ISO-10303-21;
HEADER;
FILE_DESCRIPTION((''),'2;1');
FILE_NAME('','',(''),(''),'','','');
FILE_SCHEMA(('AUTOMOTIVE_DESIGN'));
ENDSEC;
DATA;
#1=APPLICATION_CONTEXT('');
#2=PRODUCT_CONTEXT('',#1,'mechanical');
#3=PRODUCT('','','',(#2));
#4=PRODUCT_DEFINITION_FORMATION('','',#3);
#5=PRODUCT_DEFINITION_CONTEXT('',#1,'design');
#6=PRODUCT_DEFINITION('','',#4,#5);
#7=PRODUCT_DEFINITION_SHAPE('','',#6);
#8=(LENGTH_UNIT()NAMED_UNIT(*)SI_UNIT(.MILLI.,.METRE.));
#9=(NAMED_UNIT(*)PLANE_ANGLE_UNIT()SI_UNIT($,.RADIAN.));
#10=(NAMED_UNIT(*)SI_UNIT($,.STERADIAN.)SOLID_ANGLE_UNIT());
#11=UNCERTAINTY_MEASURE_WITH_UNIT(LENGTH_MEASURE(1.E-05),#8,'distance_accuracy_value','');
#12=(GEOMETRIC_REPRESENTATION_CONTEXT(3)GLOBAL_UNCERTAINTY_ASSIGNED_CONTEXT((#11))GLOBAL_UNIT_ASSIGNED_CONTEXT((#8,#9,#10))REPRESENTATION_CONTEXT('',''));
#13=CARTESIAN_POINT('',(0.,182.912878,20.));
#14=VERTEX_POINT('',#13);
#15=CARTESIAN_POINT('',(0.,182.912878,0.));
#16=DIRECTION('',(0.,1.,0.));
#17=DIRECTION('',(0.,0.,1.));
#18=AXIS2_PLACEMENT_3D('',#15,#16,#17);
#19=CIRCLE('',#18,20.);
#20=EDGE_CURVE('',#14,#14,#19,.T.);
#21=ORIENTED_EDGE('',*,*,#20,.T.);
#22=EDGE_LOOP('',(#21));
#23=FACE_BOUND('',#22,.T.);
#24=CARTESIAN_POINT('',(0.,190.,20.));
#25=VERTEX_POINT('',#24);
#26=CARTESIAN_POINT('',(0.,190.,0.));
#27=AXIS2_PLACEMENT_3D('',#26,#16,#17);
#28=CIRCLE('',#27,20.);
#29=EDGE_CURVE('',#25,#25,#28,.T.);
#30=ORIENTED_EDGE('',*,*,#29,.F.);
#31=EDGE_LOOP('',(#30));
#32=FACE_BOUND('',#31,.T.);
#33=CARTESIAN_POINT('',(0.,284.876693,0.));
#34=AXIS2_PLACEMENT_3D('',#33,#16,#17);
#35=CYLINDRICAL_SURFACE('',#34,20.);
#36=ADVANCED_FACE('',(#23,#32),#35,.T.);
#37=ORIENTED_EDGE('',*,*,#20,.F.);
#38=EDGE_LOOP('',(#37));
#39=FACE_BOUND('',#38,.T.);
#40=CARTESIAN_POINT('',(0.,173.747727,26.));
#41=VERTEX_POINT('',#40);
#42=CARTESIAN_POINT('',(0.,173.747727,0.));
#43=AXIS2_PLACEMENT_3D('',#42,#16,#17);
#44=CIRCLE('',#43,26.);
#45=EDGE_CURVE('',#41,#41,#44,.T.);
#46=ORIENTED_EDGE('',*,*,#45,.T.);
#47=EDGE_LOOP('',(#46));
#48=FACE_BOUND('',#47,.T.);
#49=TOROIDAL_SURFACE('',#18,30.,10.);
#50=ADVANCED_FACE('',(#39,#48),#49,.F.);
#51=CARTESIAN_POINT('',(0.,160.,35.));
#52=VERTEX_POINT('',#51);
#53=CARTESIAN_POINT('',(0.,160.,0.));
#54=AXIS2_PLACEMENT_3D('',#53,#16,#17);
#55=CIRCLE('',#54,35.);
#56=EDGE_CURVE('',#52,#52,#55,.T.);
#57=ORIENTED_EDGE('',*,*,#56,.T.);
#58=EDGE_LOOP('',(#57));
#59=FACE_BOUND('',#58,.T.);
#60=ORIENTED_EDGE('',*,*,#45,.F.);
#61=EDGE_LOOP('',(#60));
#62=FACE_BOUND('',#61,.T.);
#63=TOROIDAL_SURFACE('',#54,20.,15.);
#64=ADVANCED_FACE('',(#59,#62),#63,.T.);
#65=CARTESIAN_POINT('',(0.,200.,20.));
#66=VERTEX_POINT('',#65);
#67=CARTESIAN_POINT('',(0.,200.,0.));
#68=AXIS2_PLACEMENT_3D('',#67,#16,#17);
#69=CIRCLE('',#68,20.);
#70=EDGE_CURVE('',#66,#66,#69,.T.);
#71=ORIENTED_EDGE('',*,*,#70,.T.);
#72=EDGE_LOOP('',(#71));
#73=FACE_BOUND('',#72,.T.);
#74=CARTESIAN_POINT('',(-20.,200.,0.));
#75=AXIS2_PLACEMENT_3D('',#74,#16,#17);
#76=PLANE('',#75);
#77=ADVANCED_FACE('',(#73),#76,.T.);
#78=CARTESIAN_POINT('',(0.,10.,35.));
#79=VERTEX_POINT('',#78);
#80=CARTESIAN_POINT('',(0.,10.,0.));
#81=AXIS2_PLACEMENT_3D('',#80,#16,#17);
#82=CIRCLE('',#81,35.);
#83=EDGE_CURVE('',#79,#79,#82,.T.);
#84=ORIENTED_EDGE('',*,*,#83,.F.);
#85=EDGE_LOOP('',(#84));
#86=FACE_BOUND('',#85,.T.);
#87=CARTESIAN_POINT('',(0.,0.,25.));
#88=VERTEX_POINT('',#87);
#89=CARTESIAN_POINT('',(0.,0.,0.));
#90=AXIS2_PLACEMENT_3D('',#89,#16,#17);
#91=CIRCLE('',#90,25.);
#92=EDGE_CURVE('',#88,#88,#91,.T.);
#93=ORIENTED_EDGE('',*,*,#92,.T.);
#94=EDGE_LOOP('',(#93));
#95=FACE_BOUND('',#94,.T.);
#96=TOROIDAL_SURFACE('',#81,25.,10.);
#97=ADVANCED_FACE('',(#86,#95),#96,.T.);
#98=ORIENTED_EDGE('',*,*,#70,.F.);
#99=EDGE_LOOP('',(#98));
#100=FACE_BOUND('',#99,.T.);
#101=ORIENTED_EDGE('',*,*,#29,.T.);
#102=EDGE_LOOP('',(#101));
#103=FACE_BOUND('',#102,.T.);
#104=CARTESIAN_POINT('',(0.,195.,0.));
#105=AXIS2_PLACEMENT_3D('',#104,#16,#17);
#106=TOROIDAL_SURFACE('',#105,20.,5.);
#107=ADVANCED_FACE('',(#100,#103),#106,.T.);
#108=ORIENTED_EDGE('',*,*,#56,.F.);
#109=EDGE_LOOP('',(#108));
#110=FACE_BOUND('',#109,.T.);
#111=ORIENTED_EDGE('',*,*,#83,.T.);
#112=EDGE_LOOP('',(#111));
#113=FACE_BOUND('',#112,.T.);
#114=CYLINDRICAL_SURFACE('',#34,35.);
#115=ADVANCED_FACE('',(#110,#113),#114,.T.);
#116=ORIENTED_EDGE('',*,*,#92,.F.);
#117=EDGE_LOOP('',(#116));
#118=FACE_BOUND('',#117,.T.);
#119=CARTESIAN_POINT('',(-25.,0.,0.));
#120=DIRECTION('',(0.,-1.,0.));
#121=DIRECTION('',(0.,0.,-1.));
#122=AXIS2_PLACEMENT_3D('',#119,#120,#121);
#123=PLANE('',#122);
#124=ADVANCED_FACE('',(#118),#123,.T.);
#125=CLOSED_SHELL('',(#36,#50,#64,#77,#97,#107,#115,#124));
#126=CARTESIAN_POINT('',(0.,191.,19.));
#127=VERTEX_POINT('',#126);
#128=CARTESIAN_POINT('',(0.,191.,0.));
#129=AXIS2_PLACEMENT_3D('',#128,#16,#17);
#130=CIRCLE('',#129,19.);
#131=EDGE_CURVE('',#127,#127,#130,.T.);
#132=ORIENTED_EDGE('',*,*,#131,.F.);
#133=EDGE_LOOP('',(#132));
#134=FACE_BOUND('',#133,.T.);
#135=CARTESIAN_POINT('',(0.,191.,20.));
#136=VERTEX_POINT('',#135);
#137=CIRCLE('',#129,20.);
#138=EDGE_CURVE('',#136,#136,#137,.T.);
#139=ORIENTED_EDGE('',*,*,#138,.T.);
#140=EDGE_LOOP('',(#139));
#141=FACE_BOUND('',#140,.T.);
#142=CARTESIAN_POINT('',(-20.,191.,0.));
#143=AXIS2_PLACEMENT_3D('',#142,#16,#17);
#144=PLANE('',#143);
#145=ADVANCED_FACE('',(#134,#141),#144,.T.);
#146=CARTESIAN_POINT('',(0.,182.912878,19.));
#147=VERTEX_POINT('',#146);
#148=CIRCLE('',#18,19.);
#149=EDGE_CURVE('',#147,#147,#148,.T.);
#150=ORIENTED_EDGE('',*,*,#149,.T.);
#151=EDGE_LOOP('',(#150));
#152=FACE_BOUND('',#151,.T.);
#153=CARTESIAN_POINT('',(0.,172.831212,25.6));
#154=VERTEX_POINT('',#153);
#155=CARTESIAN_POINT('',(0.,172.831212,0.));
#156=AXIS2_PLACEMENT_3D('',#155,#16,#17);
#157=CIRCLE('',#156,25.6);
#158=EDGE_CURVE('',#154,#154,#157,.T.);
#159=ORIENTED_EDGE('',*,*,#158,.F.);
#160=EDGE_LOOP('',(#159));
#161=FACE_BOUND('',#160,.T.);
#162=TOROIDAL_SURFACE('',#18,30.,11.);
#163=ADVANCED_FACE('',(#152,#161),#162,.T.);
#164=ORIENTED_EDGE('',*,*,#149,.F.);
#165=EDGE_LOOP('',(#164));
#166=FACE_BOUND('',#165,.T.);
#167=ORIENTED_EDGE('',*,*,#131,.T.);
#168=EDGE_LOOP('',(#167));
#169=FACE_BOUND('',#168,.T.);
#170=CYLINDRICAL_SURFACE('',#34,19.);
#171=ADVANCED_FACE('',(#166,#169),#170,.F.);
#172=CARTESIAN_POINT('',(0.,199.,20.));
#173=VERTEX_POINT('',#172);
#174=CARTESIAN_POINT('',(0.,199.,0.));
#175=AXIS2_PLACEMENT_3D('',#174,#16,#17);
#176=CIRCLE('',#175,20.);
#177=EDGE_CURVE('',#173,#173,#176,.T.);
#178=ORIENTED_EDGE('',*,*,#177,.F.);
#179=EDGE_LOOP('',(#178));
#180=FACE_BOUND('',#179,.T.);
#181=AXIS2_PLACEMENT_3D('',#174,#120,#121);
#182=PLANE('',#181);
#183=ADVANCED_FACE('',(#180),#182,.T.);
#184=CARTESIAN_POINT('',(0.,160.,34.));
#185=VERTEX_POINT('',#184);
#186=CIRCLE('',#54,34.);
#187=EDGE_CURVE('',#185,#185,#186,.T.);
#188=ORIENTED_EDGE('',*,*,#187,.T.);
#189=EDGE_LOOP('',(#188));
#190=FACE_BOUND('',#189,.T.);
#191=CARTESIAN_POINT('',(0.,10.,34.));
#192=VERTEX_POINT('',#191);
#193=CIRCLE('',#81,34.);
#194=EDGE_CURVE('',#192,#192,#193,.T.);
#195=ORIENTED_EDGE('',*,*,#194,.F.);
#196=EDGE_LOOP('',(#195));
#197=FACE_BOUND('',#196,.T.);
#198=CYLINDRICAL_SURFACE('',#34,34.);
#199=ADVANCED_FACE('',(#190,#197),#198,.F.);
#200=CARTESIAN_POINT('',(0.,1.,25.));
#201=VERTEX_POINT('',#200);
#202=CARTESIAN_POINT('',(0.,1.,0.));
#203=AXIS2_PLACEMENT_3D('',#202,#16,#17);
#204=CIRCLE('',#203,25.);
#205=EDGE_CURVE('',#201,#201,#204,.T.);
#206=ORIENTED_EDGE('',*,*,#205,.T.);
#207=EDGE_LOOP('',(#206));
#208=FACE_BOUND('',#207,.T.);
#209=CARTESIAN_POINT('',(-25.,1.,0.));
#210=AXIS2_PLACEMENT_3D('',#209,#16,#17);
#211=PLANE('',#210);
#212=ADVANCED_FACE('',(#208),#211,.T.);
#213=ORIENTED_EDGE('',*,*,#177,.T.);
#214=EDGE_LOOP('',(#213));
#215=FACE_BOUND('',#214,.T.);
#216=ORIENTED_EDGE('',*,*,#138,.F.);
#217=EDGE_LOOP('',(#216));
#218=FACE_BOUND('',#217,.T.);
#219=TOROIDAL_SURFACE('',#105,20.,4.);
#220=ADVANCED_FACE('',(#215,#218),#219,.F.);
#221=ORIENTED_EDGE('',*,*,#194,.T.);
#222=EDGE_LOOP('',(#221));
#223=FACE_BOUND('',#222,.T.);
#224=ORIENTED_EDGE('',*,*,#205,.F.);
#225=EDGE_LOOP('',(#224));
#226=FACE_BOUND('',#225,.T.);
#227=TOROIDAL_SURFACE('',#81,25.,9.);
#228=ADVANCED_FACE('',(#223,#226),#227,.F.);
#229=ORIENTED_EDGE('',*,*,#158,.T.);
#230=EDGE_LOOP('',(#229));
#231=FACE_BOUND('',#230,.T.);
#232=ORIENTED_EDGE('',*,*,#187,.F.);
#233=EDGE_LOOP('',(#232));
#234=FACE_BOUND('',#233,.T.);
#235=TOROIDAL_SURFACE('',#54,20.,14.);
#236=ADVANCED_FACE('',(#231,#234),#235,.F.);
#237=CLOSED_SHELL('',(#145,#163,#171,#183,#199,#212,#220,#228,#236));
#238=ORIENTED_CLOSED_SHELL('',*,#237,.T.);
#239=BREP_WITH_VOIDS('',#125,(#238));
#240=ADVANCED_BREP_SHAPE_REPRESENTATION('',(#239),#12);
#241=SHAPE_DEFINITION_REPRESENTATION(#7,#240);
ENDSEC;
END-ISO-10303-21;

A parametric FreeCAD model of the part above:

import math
import FreeCAD as App
import Part
import Sketcher
from FreeCAD import Vector

doc = App.newDocument("Part")
body = doc.addObject("PartDesign::Body", "Body")

# Sketch on XY plane
sketch1 = body.newObject("Sketcher::SketchObject", "Sketch")
sketch1.AttachmentSupport = (doc.getObject("XY_Plane"), [""])
sketch1.MapMode = "FlatFace"
sketch1.addGeometry(Part.LineSegment(Vector(-35, 160, 0), Vector(-35, 10, 0)), False)
sketch1.addGeometry(Part.ArcOfCircle(Part.Circle(Vector(-25, 10, 0), Vector(0, 0, 1), 10), math.radians(180), math.radians(270)), False)
sketch1.addGeometry(Part.LineSegment(Vector(-25, 0, 0), Vector(0, 0, 0)), False)
sketch1.addGeometry(Part.LineSegment(Vector(0, 0, 0), Vector(0, 1, 0)), False)
sketch1.addGeometry(Part.LineSegment(Vector(0, 1, 0), Vector(-25, 1, 0)), False)
sketch1.addGeometry(Part.ArcOfCircle(Part.Circle(Vector(-25, 10, 0), Vector(0, 0, 1), 9), math.radians(180), math.radians(270)), False)
sketch1.addGeometry(Part.LineSegment(Vector(-34, 10, 0), Vector(-34, 160, 0)), False)
sketch1.addGeometry(Part.ArcOfCircle(Part.Circle(Vector(-20, 160, 0), Vector(0, 0, 1), 14), math.radians(114), math.radians(180)), False)
sketch1.addGeometry(Part.ArcOfCircle(Part.Circle(Vector(-30, 182.9, 0), Vector(0, 0, 1), 11), math.radians(-66), math.radians(0)), False)
sketch1.addGeometry(Part.LineSegment(Vector(-19, 182.9, 0), Vector(-19, 191, 0)), False)
sketch1.addGeometry(Part.LineSegment(Vector(-19, 191, 0), Vector(-20, 191, 0)), False)
sketch1.addGeometry(Part.ArcOfCircle(Part.Circle(Vector(-20, 195, 0), Vector(0, 0, 1), 4), math.radians(90), math.radians(270)), False)
sketch1.addGeometry(Part.LineSegment(Vector(-20, 199, 0), Vector(0, 199, 0)), False)
sketch1.addGeometry(Part.LineSegment(Vector(0, 199, 0), Vector(0, 200, 0)), False)
sketch1.addGeometry(Part.LineSegment(Vector(0, 200, 0), Vector(-20, 200, 0)), False)
sketch1.addGeometry(Part.ArcOfCircle(Part.Circle(Vector(-20, 195, 0), Vector(0, 0, 1), 5), math.radians(90), math.radians(270)), False)
sketch1.addGeometry(Part.LineSegment(Vector(-20, 190, 0), Vector(-20, 182.9, 0)), False)
sketch1.addGeometry(Part.ArcOfCircle(Part.Circle(Vector(-30, 182.9, 0), Vector(0, 0, 1), 10), math.radians(-66), math.radians(0)), False)
sketch1.addGeometry(Part.ArcOfCircle(Part.Circle(Vector(-20, 160, 0), Vector(0, 0, 1), 15), math.radians(114), math.radians(180)), False)
sketch1.addConstraint(Sketcher.Constraint("Tangent", 0, 2, 1, 1))
sketch1.addConstraint(Sketcher.Constraint("Tangent", 1, 2, 2, 1))
sketch1.addConstraint(Sketcher.Constraint("Coincident", 2, 2, 3, 1))
sketch1.addConstraint(Sketcher.Constraint("Coincident", 3, 2, 4, 1))
sketch1.addConstraint(Sketcher.Constraint("Tangent", 4, 2, 5, 2))
sketch1.addConstraint(Sketcher.Constraint("Tangent", 5, 1, 6, 1))
sketch1.addConstraint(Sketcher.Constraint("Tangent", 6, 2, 7, 2))
sketch1.addConstraint(Sketcher.Constraint("Tangent", 7, 1, 8, 1))
sketch1.addConstraint(Sketcher.Constraint("Tangent", 8, 2, 9, 1))
sketch1.addConstraint(Sketcher.Constraint("Coincident", 9, 2, 10, 1))
sketch1.addConstraint(Sketcher.Constraint("Tangent", 10, 2, 11, 2))
sketch1.addConstraint(Sketcher.Constraint("Tangent", 11, 1, 12, 1))
sketch1.addConstraint(Sketcher.Constraint("Coincident", 12, 2, 13, 1))
sketch1.addConstraint(Sketcher.Constraint("Coincident", 13, 2, 14, 1))
sketch1.addConstraint(Sketcher.Constraint("Tangent", 14, 2, 15, 1))
sketch1.addConstraint(Sketcher.Constraint("Coincident", 15, 2, 16, 1))
sketch1.addConstraint(Sketcher.Constraint("Tangent", 16, 2, 17, 2))
sketch1.addConstraint(Sketcher.Constraint("Tangent", 17, 1, 18, 1))
sketch1.addConstraint(Sketcher.Constraint("Tangent", 18, 2, 0, 1))
sketch1.addConstraint(Sketcher.Constraint("Vertical", 0))
sketch1.addConstraint(Sketcher.Constraint("Horizontal", 2))
sketch1.addConstraint(Sketcher.Constraint("Vertical", 3))
sketch1.addConstraint(Sketcher.Constraint("Horizontal", 4))
sketch1.addConstraint(Sketcher.Constraint("Vertical", 6))
sketch1.addConstraint(Sketcher.Constraint("Vertical", 9))
sketch1.addConstraint(Sketcher.Constraint("Horizontal", 10))
sketch1.addConstraint(Sketcher.Constraint("Horizontal", 12))
sketch1.addConstraint(Sketcher.Constraint("Vertical", 13))
sketch1.addConstraint(Sketcher.Constraint("Horizontal", 14))
sketch1.addConstraint(Sketcher.Constraint("Vertical", 16))
sketch1.addConstraint(Sketcher.Constraint("Coincident", 2, 2, -1, 1))
sketch1.addConstraint(Sketcher.Constraint("Coincident", 5, 3, 1, 3))
sketch1.addConstraint(Sketcher.Constraint("Coincident", 15, 3, 11, 3))
sketch1.addConstraint(Sketcher.Constraint("Coincident", 17, 3, 8, 3))
sketch1.addConstraint(Sketcher.Constraint("Coincident", 18, 3, 7, 3))
sketch1.addConstraint(Sketcher.Constraint("Equal", 1, 17))
sketch1.addConstraint(Sketcher.Constraint("PointOnObject", 12, 2, -2))
sketch1.addConstraint(Sketcher.Constraint("Vertical", 7, 3, 11, 3))
sketch1.addConstraint(Sketcher.Constraint("Vertical", 14, 2, 15, 2))
sketch1.addConstraint(Sketcher.Constraint("Equal", 3, 13))
sketch1.addConstraint(Sketcher.Constraint("Radius", 1, 10.0))
sketch1.addConstraint(Sketcher.Constraint("Radius", 5, 9.0))
sketch1.addConstraint(Sketcher.Constraint("Radius", 7, 14.0))
sketch1.addConstraint(Sketcher.Constraint("Radius", 11, 4.0))
sketch1.addConstraint(Sketcher.Constraint("DistanceX", 2, 1, 2, 2, 25.0))
sketch1.addConstraint(Sketcher.Constraint("DistanceY", 0, 2, 0, 1, 150.0))
sketch1.addConstraint(Sketcher.Constraint("DistanceY", -1, 1, 11, 3, 195.0))
revolution = body.newObject("PartDesign::Revolution", "Revolution")
revolution.Profile = sketch1
revolution.ReferenceAxis = (sketch1, ["V_Axis"])
revolution.Angle = 360

doc.recompute()
